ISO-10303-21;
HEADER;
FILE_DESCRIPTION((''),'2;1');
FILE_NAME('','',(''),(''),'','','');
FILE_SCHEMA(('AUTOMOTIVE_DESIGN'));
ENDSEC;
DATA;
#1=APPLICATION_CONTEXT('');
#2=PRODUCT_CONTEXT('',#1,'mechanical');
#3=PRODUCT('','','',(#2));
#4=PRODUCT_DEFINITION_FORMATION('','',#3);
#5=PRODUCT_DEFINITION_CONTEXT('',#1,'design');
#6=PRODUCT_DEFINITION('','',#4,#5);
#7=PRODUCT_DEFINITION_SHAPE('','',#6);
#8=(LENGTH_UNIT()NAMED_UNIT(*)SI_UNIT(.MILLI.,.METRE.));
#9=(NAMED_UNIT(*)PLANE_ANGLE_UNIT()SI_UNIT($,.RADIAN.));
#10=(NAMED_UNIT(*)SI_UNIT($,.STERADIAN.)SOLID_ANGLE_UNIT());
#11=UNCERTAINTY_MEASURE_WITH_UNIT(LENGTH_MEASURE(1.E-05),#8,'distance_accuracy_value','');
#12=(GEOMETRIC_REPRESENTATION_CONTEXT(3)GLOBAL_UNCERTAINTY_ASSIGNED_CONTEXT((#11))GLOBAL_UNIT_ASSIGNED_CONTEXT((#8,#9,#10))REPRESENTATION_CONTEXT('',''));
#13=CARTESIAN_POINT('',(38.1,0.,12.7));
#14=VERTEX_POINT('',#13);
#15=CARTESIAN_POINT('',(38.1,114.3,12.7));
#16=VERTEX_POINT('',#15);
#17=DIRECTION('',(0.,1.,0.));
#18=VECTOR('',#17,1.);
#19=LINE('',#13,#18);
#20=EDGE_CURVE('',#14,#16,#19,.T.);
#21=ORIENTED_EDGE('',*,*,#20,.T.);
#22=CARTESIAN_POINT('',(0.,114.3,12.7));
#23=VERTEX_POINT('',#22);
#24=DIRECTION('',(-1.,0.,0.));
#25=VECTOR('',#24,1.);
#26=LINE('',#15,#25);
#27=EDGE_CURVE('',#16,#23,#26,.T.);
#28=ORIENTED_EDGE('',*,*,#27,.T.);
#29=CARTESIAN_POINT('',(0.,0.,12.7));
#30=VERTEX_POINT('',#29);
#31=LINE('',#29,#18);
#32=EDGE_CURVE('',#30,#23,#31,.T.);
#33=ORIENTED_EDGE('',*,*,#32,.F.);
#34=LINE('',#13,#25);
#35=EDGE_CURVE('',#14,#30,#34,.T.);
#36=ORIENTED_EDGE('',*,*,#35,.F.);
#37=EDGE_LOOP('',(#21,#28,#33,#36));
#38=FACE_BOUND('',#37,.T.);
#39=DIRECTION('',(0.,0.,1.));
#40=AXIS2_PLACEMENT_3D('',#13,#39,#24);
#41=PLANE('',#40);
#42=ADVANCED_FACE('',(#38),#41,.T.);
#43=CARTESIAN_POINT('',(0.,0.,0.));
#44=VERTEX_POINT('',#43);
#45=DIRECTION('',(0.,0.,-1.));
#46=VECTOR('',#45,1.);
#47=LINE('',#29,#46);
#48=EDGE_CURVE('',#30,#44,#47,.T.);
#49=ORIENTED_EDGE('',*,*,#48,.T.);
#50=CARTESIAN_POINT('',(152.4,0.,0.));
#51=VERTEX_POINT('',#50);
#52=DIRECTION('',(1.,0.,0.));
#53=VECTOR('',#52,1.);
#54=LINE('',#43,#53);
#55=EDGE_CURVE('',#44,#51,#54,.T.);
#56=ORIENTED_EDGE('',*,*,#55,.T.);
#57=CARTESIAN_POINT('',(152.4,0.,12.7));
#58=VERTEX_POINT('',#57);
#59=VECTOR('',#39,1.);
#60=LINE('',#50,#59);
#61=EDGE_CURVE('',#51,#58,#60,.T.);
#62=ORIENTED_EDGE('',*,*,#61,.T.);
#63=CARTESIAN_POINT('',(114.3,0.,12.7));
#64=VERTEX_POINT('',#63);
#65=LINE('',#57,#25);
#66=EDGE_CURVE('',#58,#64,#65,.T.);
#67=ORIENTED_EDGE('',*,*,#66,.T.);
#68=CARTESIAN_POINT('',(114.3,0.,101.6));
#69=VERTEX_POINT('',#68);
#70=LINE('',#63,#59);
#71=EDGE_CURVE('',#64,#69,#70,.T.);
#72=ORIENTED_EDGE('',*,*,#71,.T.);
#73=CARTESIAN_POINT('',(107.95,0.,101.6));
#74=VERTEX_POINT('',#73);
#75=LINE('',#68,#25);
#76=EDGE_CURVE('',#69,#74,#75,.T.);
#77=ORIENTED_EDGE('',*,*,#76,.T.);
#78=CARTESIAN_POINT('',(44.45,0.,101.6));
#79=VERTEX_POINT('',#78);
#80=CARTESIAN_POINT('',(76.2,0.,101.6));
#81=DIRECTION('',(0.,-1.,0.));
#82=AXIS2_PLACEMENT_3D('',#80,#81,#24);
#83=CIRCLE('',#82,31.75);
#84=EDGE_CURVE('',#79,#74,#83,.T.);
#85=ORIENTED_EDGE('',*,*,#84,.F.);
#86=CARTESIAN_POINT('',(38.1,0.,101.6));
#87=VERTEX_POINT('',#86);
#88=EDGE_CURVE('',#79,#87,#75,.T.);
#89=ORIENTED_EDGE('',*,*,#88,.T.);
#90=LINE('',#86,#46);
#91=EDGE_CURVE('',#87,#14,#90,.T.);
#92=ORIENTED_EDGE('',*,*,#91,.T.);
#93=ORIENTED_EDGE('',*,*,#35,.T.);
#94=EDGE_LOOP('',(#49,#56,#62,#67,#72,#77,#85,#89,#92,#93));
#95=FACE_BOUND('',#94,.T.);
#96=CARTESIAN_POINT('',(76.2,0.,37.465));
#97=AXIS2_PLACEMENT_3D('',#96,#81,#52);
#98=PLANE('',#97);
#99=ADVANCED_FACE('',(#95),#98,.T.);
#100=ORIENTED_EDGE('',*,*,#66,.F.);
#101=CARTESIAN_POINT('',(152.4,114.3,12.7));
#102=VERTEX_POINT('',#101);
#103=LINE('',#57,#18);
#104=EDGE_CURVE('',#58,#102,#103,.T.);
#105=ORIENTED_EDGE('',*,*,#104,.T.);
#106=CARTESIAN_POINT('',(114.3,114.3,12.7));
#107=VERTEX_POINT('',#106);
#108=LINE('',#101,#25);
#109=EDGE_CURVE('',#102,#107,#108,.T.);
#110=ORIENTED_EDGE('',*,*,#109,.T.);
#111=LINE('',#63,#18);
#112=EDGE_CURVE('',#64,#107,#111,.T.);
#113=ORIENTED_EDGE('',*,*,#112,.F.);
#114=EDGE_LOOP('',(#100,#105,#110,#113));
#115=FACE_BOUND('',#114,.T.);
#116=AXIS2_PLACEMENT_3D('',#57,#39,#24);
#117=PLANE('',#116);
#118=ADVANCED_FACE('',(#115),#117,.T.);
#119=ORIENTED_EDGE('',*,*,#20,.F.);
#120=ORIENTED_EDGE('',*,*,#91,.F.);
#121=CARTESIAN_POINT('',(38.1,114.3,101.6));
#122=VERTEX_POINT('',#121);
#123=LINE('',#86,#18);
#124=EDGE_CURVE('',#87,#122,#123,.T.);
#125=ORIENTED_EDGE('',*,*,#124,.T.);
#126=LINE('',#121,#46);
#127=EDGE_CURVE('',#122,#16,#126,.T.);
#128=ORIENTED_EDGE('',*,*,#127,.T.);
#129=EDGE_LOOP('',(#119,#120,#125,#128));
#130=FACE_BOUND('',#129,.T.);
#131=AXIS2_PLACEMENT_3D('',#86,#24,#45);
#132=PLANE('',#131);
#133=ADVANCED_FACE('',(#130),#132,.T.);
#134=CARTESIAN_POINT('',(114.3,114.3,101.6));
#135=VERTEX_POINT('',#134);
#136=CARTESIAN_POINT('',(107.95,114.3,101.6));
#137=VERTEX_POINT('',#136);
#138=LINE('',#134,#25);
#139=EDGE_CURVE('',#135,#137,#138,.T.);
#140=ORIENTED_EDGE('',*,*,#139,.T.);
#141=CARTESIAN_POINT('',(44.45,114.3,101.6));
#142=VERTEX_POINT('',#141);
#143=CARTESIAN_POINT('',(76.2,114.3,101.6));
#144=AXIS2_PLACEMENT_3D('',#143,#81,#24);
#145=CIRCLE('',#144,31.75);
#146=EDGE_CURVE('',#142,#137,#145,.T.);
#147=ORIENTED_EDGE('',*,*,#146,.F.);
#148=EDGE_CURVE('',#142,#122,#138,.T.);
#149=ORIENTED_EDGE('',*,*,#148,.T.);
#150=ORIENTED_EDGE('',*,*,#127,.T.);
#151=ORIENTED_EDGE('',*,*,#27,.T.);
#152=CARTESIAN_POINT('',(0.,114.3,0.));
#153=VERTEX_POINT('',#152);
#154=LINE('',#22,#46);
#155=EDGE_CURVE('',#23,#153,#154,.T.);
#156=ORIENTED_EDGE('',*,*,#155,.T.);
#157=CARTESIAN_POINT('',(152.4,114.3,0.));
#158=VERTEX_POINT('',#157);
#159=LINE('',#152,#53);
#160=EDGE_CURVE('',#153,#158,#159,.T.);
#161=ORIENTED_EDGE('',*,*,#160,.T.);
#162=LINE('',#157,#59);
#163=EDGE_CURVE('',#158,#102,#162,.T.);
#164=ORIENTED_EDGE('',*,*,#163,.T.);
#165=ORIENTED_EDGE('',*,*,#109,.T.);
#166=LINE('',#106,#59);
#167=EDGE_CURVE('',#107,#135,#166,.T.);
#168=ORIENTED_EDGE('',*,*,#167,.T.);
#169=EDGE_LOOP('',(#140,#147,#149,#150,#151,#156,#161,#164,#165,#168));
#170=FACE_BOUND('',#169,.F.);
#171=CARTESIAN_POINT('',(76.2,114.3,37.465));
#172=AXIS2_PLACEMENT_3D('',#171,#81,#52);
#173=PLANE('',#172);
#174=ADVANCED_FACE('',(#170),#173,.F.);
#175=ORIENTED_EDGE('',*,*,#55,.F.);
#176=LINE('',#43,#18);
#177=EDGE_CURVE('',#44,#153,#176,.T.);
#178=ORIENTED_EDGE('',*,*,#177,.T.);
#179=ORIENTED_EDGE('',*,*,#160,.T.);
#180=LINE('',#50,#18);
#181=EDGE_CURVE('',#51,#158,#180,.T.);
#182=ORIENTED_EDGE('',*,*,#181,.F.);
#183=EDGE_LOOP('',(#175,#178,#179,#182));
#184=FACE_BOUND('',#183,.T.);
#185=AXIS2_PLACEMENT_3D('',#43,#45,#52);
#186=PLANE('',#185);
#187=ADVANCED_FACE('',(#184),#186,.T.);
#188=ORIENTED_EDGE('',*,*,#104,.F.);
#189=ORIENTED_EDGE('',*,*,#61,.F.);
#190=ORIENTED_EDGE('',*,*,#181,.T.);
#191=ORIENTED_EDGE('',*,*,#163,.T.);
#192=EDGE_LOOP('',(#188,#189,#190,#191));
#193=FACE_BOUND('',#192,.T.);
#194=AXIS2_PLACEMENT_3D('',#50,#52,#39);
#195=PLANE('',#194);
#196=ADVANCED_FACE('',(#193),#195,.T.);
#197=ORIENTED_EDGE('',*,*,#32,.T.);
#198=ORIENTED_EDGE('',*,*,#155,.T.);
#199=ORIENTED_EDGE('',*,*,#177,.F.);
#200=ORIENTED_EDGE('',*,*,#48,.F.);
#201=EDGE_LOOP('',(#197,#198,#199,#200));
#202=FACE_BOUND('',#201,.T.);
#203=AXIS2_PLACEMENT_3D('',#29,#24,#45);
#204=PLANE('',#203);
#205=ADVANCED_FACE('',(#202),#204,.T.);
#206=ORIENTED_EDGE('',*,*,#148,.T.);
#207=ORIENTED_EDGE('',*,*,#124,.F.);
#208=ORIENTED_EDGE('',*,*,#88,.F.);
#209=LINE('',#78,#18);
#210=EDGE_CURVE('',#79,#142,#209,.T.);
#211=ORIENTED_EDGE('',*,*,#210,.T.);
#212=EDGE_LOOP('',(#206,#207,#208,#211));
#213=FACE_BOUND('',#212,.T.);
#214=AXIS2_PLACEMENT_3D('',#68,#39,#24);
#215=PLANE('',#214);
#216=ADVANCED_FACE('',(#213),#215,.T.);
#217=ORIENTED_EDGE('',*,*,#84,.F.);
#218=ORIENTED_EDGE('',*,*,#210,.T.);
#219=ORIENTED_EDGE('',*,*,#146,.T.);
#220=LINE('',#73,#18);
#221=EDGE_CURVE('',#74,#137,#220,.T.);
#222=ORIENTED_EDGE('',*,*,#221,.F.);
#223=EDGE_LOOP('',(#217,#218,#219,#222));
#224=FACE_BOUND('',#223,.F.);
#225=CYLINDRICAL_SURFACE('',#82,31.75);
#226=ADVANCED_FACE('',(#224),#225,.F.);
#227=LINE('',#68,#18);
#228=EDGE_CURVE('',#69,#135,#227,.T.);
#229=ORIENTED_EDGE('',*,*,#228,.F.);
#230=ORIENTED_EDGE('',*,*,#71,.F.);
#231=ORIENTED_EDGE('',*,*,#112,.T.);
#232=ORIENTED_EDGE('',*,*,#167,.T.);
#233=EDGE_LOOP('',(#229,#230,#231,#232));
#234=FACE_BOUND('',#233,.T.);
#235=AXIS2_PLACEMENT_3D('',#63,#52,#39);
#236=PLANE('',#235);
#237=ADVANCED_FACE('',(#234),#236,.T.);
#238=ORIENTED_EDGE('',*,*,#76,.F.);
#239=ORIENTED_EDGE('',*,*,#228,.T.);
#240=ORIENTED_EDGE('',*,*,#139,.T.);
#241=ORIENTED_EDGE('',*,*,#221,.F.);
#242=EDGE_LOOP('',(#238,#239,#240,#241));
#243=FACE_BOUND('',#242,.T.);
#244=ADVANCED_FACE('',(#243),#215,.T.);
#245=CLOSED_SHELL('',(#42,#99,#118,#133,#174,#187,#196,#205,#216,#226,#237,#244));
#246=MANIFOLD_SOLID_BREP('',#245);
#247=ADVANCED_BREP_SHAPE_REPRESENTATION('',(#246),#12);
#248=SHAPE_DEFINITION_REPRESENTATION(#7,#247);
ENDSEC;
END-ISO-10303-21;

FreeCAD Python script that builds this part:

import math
import FreeCAD as App
import Part
import Sketcher

V = App.Vector
Q = App.Units.Quantity

doc = App.newDocument("Part")
body = doc.addObject("PartDesign::Body", "Body")

# Sketch on XZ plane
sketch1 = body.newObject("Sketcher::SketchObject", "Sketch")
sketch1.AttachmentSupport = (doc.getObject("XZ_Plane"), [""])
sketch1.MapMode = "FlatFace"
sketch1.addGeometry([
    Part.LineSegment(V(0, 13, 0), V(0, 0, 0)),  # 0
    Part.LineSegment(V(0, 0, 0), V(152, 0, 0)),  # 1
    Part.LineSegment(V(152, 0, 0), V(152, 13, 0)),  # 2
    Part.LineSegment(V(152, 13, 0), V(114, 13, 0)),  # 3
    Part.LineSegment(V(114, 13, 0), V(114, 102, 0)),  # 4
    Part.LineSegment(V(114, 102, 0), V(38, 102, 0)),  # 5
    Part.LineSegment(V(38, 102, 0), V(38, 13, 0)),  # 6
    Part.LineSegment(V(38, 13, 0), V(0, 13, 0)),  # 7
], False)
sketch1.addConstraint([
    Sketcher.Constraint("Coincident", 0, 2, 1, 1),
    Sketcher.Constraint("Coincident", 1, 2, 2, 1),
    Sketcher.Constraint("Coincident", 2, 2, 3, 1),
    Sketcher.Constraint("Coincident", 3, 2, 4, 1),
    Sketcher.Constraint("Coincident", 4, 2, 5, 1),
    Sketcher.Constraint("Coincident", 5, 2, 6, 1),
    Sketcher.Constraint("Coincident", 6, 2, 7, 1),
    Sketcher.Constraint("Coincident", 7, 2, 0, 1),
    Sketcher.Constraint("Vertical", 0),
    Sketcher.Constraint("Horizontal", 1),
    Sketcher.Constraint("Vertical", 2),
    Sketcher.Constraint("Horizontal", 3),
    Sketcher.Constraint("Vertical", 4),
    Sketcher.Constraint("Horizontal", 5),
    Sketcher.Constraint("Vertical", 6),
    Sketcher.Constraint("Horizontal", 7),
    Sketcher.Constraint("Coincident", 0, 2, -1, 1),
    Sketcher.Constraint("Horizontal", 3, 2, 6, 2),
    Sketcher.Constraint("Equal", 3, 7),
    Sketcher.Constraint("DistanceX", 1, 1, 1, 2, Q("6 in")),
    Sketcher.Constraint("DistanceX", 5, 2, 5, 1, Q("3 in")),
    Sketcher.Constraint("DistanceY", 0, 2, 0, 1, Q("0.5 in")),
    Sketcher.Constraint("DistanceY", 4, 1, 4, 2, Q("3.5 in")),
])
pad1 = body.newObject("PartDesign::Pad", "Pad")
pad1.Profile = sketch1
pad1.Length = Q("4.5 in")
pad1.Reversed = True

# Sketch on XZ plane
sketch2 = body.newObject("Sketcher::SketchObject", "Sketch001")
sketch2.AttachmentSupport = (doc.getObject("XZ_Plane"), [""])
sketch2.MapMode = "FlatFace"
sketch2.addGeometry([
    Part.LineSegment(V(108, 102, 0), V(44, 102, 0)),
    Part.ArcOfCircle(Part.Circle(V(76, 102, 0), V(0, 0, 1), 32), math.radians(180), math.radians(360)),
], False)
sketch2.addConstraint([
    Sketcher.Constraint("Coincident", 0, 1, 1, 2),
    Sketcher.Constraint("Coincident", 1, 1, 0, 2),
    Sketcher.Constraint("Horizontal", 0),
    Sketcher.Constraint("Horizontal", 1, 3, 0, 1),
    Sketcher.Constraint("Radius", 1, Q("1.25 in")),
    Sketcher.Constraint("DistanceX", -1, 1, 1, 3, Q("3 in")),
    Sketcher.Constraint("DistanceY", -1, 1, 1, 3, Q("4 in")),
])
pocket1 = body.newObject("PartDesign::Pocket", "Pocket")
pocket1.Profile = sketch2
pocket1.Length = Q("4.5 in")

doc.recompute()
